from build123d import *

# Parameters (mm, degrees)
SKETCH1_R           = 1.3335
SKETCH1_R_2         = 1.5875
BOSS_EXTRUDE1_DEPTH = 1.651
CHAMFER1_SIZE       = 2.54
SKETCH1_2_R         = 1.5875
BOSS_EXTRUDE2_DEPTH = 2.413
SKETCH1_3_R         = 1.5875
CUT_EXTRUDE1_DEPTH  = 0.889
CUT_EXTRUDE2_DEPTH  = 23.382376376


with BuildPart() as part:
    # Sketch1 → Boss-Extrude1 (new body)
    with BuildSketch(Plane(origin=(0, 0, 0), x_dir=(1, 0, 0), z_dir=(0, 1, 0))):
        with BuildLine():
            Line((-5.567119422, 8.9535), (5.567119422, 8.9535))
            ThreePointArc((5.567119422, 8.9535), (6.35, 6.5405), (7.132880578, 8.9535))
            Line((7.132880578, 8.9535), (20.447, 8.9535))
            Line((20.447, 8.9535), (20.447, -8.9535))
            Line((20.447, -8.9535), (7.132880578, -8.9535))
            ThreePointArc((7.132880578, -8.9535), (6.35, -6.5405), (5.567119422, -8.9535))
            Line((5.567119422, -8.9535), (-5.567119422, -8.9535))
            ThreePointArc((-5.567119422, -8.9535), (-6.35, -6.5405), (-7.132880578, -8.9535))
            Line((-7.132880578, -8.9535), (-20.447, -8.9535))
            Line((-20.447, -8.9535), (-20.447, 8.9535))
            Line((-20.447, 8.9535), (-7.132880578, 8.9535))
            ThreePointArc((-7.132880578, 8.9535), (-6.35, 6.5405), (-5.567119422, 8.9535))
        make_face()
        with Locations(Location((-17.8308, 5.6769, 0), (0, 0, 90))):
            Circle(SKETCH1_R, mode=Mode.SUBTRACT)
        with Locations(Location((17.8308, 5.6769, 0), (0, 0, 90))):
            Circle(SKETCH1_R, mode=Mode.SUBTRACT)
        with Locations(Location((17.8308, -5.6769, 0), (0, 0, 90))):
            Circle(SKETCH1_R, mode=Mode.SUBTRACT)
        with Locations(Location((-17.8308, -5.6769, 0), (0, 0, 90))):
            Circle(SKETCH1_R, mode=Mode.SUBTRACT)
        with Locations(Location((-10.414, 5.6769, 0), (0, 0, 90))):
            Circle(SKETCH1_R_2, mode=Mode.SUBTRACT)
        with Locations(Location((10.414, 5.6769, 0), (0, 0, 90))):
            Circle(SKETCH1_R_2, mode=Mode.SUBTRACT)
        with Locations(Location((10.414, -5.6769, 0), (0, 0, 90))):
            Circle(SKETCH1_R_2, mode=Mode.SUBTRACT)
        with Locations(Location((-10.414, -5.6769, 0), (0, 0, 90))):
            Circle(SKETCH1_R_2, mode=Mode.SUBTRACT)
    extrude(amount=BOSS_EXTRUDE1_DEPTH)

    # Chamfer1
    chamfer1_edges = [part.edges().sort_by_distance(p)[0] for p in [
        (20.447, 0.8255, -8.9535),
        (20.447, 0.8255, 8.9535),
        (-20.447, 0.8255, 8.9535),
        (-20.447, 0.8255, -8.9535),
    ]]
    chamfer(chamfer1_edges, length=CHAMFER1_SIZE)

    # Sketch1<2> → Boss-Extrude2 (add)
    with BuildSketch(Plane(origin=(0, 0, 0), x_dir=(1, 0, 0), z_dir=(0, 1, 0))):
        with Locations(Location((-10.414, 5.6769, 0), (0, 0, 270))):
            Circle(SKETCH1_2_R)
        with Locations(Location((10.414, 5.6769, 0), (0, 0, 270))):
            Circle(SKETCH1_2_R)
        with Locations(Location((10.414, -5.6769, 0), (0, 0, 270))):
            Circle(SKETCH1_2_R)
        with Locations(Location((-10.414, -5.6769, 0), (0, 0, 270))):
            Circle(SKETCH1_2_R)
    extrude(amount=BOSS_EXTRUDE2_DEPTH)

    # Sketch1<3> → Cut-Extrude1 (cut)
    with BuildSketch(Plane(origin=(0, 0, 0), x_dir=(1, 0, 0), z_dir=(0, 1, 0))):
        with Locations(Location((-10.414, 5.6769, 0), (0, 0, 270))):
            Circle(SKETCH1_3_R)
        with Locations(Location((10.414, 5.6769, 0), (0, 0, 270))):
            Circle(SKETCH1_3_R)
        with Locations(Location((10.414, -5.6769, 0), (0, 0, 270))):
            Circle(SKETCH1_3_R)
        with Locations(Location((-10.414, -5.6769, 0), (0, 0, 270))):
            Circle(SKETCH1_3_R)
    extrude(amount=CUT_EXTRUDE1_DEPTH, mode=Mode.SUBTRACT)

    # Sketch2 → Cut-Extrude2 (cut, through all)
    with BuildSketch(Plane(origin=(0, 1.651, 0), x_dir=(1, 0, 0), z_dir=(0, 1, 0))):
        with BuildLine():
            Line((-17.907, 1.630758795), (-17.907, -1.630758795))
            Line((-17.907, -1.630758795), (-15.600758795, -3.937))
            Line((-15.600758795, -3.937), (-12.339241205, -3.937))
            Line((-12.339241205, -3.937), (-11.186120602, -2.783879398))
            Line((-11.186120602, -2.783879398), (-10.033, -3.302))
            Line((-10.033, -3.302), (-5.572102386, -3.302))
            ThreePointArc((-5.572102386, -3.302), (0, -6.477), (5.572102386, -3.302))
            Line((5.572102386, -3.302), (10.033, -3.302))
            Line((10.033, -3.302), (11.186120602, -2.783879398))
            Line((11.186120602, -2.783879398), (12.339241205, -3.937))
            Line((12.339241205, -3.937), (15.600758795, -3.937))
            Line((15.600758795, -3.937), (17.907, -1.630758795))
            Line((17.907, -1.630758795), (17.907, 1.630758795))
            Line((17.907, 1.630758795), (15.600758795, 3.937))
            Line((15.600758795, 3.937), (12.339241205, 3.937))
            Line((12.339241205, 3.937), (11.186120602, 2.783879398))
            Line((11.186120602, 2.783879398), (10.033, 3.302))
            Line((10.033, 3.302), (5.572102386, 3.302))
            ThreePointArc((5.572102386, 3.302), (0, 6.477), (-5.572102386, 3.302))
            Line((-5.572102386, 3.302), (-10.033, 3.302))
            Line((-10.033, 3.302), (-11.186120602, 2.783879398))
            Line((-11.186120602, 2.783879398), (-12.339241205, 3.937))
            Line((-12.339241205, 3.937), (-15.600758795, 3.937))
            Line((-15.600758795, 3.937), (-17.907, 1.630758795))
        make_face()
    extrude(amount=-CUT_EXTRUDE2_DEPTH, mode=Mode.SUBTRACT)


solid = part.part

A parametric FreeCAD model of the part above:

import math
import FreeCAD as App
import Part
import Sketcher
from FreeCAD import Vector
Q = App.Units.Quantity


def edges_at(feature, points):
    """Names of the edges that pass closest to the given points."""
    edges = feature.Shape.Edges
    near = lambda p: min(range(len(edges)), key=lambda i: edges[i].distToShape(Part.Vertex(*p))[0])
    return sorted({f"Edge{near(p) + 1}" for p in points})

doc = App.newDocument("Part")
body = doc.addObject("PartDesign::Body", "Body")

# Sketch on XZ plane
sketch1 = doc.addObject("Sketcher::SketchObject", "Sketch")
body.addObject(sketch1)
sketch1.AttachmentSupport = (doc.XZ_Plane, [""])
sketch1.MapMode = "FlatFace"
sketch1.addGeometry(Part.LineSegment(Vector(5.6, -9, 0), Vector(-5.6, -9, 0)), False)
sketch1.addGeometry(Part.ArcOfCircle(Part.Circle(Vector(-6.3, -7.9, 0), Vector(0, 0, 1), 1.3), math.radians(-54), math.radians(234)), False)
sketch1.addGeometry(Part.LineSegment(Vector(-7.1, -9, 0), Vector(-20.4, -9, 0)), False)
sketch1.addGeometry(Part.LineSegment(Vector(-20.4, -9, 0), Vector(-20.4, 9, 0)), False)
sketch1.addGeometry(Part.LineSegment(Vector(-20.4, 9, 0), Vector(-7.1, 9, 0)), False)
sketch1.addGeometry(Part.ArcOfCircle(Part.Circle(Vector(-6.3, 7.9, 0), Vector(0, 0, 1), 1.3), math.radians(126), math.radians(414)), False)
sketch1.addGeometry(Part.LineSegment(Vector(-5.6, 9, 0), Vector(5.6, 9, 0)), False)
sketch1.addGeometry(Part.ArcOfCircle(Part.Circle(Vector(6.3, 7.9, 0), Vector(0, 0, 1), 1.3), math.radians(126), math.radians(414)), False)
sketch1.addGeometry(Part.LineSegment(Vector(7.1, 9, 0), Vector(20.4, 9, 0)), False)
sketch1.addGeometry(Part.LineSegment(Vector(20.4, 9, 0), Vector(20.4, -9, 0)), False)
sketch1.addGeometry(Part.LineSegment(Vector(20.4, -9, 0), Vector(7.1, -9, 0)), False)
sketch1.addGeometry(Part.ArcOfCircle(Part.Circle(Vector(6.3, -7.9, 0), Vector(0, 0, 1), 1.3), math.radians(-54), math.radians(234)), False)
sketch1.addGeometry(Part.Circle(Vector(17.8, 5.7, 0), Vector(0, 0, 1), 1.3), False)
sketch1.addGeometry(Part.Circle(Vector(10.4, 5.7, 0), Vector(0, 0, 1), 1.6), False)
sketch1.addGeometry(Part.Circle(Vector(-10.4, 5.7, 0), Vector(0, 0, 1), 1.6), False)
sketch1.addGeometry(Part.Circle(Vector(-17.8, 5.7, 0), Vector(0, 0, 1), 1.3), False)
sketch1.addGeometry(Part.Circle(Vector(17.8, -5.7, 0), Vector(0, 0, 1), 1.3), False)
sketch1.addGeometry(Part.Circle(Vector(10.4, -5.7, 0), Vector(0, 0, 1), 1.6), False)
sketch1.addGeometry(Part.Circle(Vector(-10.4, -5.7, 0), Vector(0, 0, 1), 1.6), False)
sketch1.addGeometry(Part.Circle(Vector(-17.8, -5.7, 0), Vector(0, 0, 1), 1.3), False)
sketch1.addConstraint(Sketcher.Constraint("Coincident", 0, 2, 1, 1))
sketch1.addConstraint(Sketcher.Constraint("Coincident", 1, 2, 2, 1))
sketch1.addConstraint(Sketcher.Constraint("Coincident", 2, 2, 3, 1))
sketch1.addConstraint(Sketcher.Constraint("Coincident", 3, 2, 4, 1))
sketch1.addConstraint(Sketcher.Constraint("Coincident", 4, 2, 5, 1))
sketch1.addConstraint(Sketcher.Constraint("Coincident", 5, 2, 6, 1))
sketch1.addConstraint(Sketcher.Constraint("Coincident", 6, 2, 7, 1))
sketch1.addConstraint(Sketcher.Constraint("Coincident", 7, 2, 8, 1))
sketch1.addConstraint(Sketcher.Constraint("Coincident", 8, 2, 9, 1))
sketch1.addConstraint(Sketcher.Constraint("Coincident", 9, 2, 10, 1))
sketch1.addConstraint(Sketcher.Constraint("Coincident", 10, 2, 11, 1))
sketch1.addConstraint(Sketcher.Constraint("Coincident", 11, 2, 0, 1))
sketch1.addConstraint(Sketcher.Constraint("Horizontal", 0))
sketch1.addConstraint(Sketcher.Constraint("Horizontal", 2))
sketch1.addConstraint(Sketcher.Constraint("Vertical", 3))
sketch1.addConstraint(Sketcher.Constraint("Horizontal", 4))
sketch1.addConstraint(Sketcher.Constraint("Horizontal", 6))
sketch1.addConstraint(Sketcher.Constraint("Horizontal", 8))
sketch1.addConstraint(Sketcher.Constraint("Vertical", 9))
sketch1.addConstraint(Sketcher.Constraint("Horizontal", 10))
sketch1.addConstraint(Sketcher.Constraint("Equal", 1, 5))
sketch1.addConstraint(Sketcher.Constraint("Equal", 5, 7))
sketch1.addConstraint(Sketcher.Constraint("Equal", 7, 11))
sketch1.addConstraint(Sketcher.Constraint("Equal", 11, 12))
sketch1.addConstraint(Sketcher.Constraint("Equal", 13, 14))
sketch1.addConstraint(Sketcher.Constraint("Equal", 12, 15))
sketch1.addConstraint(Sketcher.Constraint("Equal", 15, 16))
sketch1.addConstraint(Sketcher.Constraint("Equal", 14, 17))
sketch1.addConstraint(Sketcher.Constraint("Equal", 17, 18))
sketch1.addConstraint(Sketcher.Constraint("Equal", 16, 19))
sketch1.addConstraint(Sketcher.Constraint("Symmetric", 1, 3, 7, 3, -1, 1))
sketch1.addConstraint(Sketcher.Constraint("Symmetric", 5, 3, 11, 3, -1, 1))
sketch1.addConstraint(Sketcher.Constraint("Symmetric", 15, 3, 16, 3, -1, 1))
sketch1.addConstraint(Sketcher.Constraint("Symmetric", 14, 3, 17, 3, -1, 1))
sketch1.addConstraint(Sketcher.Constraint("Symmetric", 13, 3, 18, 3, -1, 1))
sketch1.addConstraint(Sketcher.Constraint("Symmetric", 12, 3, 19, 3, -1, 1))
sketch1.addConstraint(Sketcher.Constraint("Symmetric", 2, 2, 8, 2, -1, 1))
sketch1.addConstraint(Sketcher.Constraint("Symmetric", 5, 3, 7, 3, -2))
sketch1.addConstraint(Sketcher.Constraint("Symmetric", 13, 3, 14, 3, -2))
sketch1.addConstraint(Sketcher.Constraint("Symmetric", 12, 3, 15, 3, -2))
sketch1.addConstraint(Sketcher.Constraint("Horizontal", 12, 3, 13, 3))
sketch1.addConstraint(Sketcher.Constraint("Horizontal", 0, 2, 1, 2))
sketch1.addConstraint(Sketcher.Constraint("Horizontal", 4, 2, 5, 2))
sketch1.addConstraint(Sketcher.Constraint("Horizontal", 6, 2, 7, 2))
sketch1.addConstraint(Sketcher.Constraint("Horizontal", 2, 2, 9, 2))
sketch1.addConstraint(Sketcher.Constraint("Diameter", 12, Q("0.105 in")))
sketch1.addConstraint(Sketcher.Constraint("Diameter", 13, Q("0.125 in")))
sketch1.addConstraint(Sketcher.Constraint("DistanceX", 5, 3, 7, 3, Q("0.5 in")))
sketch1.addConstraint(Sketcher.Constraint("DistanceY", 3, 1, 3, 2, Q("0.705 in")))
sketch1.addConstraint(Sketcher.Constraint("DistanceY", 1, 3, -1, 1, Q("0.31 in")))
sketch1.addConstraint(Sketcher.Constraint("DistanceX", -1, 1, 13, 3, Q("0.41 in")))
sketch1.addConstraint(Sketcher.Constraint("DistanceX", -1, 1, 12, 3, Q("0.702 in")))
sketch1.addConstraint(Sketcher.Constraint("DistanceX", 2, 2, -1, 1, Q("0.805 in")))
sketch1.addConstraint(Sketcher.Constraint("DistanceY", 16, 3, 12, 3, Q("0.447 in")))
pad1 = doc.addObject("PartDesign::Pad", "Pad")
body.addObject(pad1)
pad1.Profile = sketch1
pad1.Length = Q("0.065 in")
pad1.Reversed = True
doc.recompute()

chamfer = doc.addObject("PartDesign::Chamfer", "Chamfer")
body.addObject(chamfer)
chamfer.Base = (pad1, edges_at(pad1, [
    (20.447, 0.826, -8.954),
    (20.447, 0.826, 8.954),
    (-20.447, 0.826, 8.954),
    (-20.447, 0.826, -8.954),
]))
chamfer.Size = Q("0.1 in")

# Sketch on XZ plane
sketch2 = doc.addObject("Sketcher::SketchObject", "Sketch001")
body.addObject(sketch2)
sketch2.AttachmentSupport = (doc.XZ_Plane, [""])
sketch2.MapMode = "FlatFace"
sketch2.addGeometry(Part.Circle(Vector(-10.4, -5.7, 0), Vector(0, 0, 1), 1.6), False)
sketch2.addGeometry(Part.Circle(Vector(10.4, -5.7, 0), Vector(0, 0, 1), 1.6), False)
sketch2.addGeometry(Part.Circle(Vector(10.4, 5.7, 0), Vector(0, 0, 1), 1.6), False)
sketch2.addGeometry(Part.Circle(Vector(-10.4, 5.7, 0), Vector(0, 0, 1), 1.6), False)
sketch2.addConstraint(Sketcher.Constraint("Equal", 0, 1))
sketch2.addConstraint(Sketcher.Constraint("Equal", 1, 2))
sketch2.addConstraint(Sketcher.Constraint("Equal", 2, 3))
sketch2.addConstraint(Sketcher.Constraint("Symmetric", 0, 3, 2, 3, -1, 1))
sketch2.addConstraint(Sketcher.Constraint("Symmetric", 1, 3, 3, 3, -1, 1))
sketch2.addConstraint(Sketcher.Constraint("Symmetric", 0, 3, 1, 3, -2))
sketch2.addConstraint(Sketcher.Constraint("Diameter", 0, Q("0.125 in")))
sketch2.addConstraint(Sketcher.Constraint("DistanceX", 0, 3, -1, 1, Q("0.41 in")))
sketch2.addConstraint(Sketcher.Constraint("DistanceY", 1, 3, 2, 3, Q("0.447 in")))
pad2 = doc.addObject("PartDesign::Pad", "Pad001")
body.addObject(pad2)
pad2.Profile = sketch2
pad2.Length = Q("0.095 in")
pad2.Reversed = True

# Sketch on XZ plane
sketch3 = doc.addObject("Sketcher::SketchObject", "Sketch002")
body.addObject(sketch3)
sketch3.AttachmentSupport = (doc.XZ_Plane, [""])
sketch3.MapMode = "FlatFace"
sketch3.addGeometry(Part.Circle(Vector(-10.4, -5.7, 0), Vector(0, 0, 1), 1.6), False)
sketch3.addGeometry(Part.Circle(Vector(10.4, -5.7, 0), Vector(0, 0, 1), 1.6), False)
sketch3.addGeometry(Part.Circle(Vector(10.4, 5.7, 0), Vector(0, 0, 1), 1.6), False)
sketch3.addGeometry(Part.Circle(Vector(-10.4, 5.7, 0), Vector(0, 0, 1), 1.6), False)
sketch3.addConstraint(Sketcher.Constraint("Equal", 0, 1))
sketch3.addConstraint(Sketcher.Constraint("Equal", 1, 2))
sketch3.addConstraint(Sketcher.Constraint("Equal", 2, 3))
sketch3.addConstraint(Sketcher.Constraint("Symmetric", 0, 3, 2, 3, -1, 1))
sketch3.addConstraint(Sketcher.Constraint("Symmetric", 1, 3, 3, 3, -1, 1))
sketch3.addConstraint(Sketcher.Constraint("Symmetric", 0, 3, 1, 3, -2))
sketch3.addConstraint(Sketcher.Constraint("Diameter", 0, Q("0.125 in")))
sketch3.addConstraint(Sketcher.Constraint("DistanceX", 0, 3, -1, 1, Q("0.41 in")))
sketch3.addConstraint(Sketcher.Constraint("DistanceY", 1, 3, 2, 3, Q("0.447 in")))
pocket1 = doc.addObject("PartDesign::Pocket", "Pocket")
body.addObject(pocket1)
pocket1.Profile = sketch3
pocket1.Length = Q("0.035 in")

# Sketch on XZ plane
sketch4 = doc.addObject("Sketcher::SketchObject", "Sketch003")
body.addObject(sketch4)
sketch4.AttachmentSupport = (doc.XZ_Plane, [""])
sketch4.MapMode = "FlatFace"
sketch4.AttachmentOffset = App.Placement(Vector(0, 0, -0.065 * 25.4), App.Rotation())
sketch4.addGeometry(Part.LineSegment(Vector(-17.9, -1.6, 0), Vector(-17.9, 1.6, 0)), False)
sketch4.addGeometry(Part.LineSegment(Vector(-17.9, 1.6, 0), Vector(-15.6, 3.9, 0)), False)
sketch4.addGeometry(Part.LineSegment(Vector(-15.6, 3.9, 0), Vector(-12.3, 3.9, 0)), False)
sketch4.addGeometry(Part.LineSegment(Vector(-12.3, 3.9, 0), Vector(-11.2, 2.8, 0)), False)
sketch4.addGeometry(Part.LineSegment(Vector(-11.2, 2.8, 0), Vector(-10, 3.3, 0)), False)
sketch4.addGeometry(Part.LineSegment(Vector(-10, 3.3, 0), Vector(-5.6, 3.3, 0)), False)
sketch4.addGeometry(Part.ArcOfCircle(Part.Circle(Vector(0, 0, 0), Vector(0, 0, 1), 6.5), math.radians(31), math.radians(149)), False)
sketch4.addGeometry(Part.LineSegment(Vector(5.6, 3.3, 0), Vector(10, 3.3, 0)), False)
sketch4.addGeometry(Part.LineSegment(Vector(10, 3.3, 0), Vector(11.2, 2.8, 0)), False)
sketch4.addGeometry(Part.LineSegment(Vector(11.2, 2.8, 0), Vector(12.3, 3.9, 0)), False)
sketch4.addGeometry(Part.LineSegment(Vector(12.3, 3.9, 0), Vector(15.6, 3.9, 0)), False)
sketch4.addGeometry(Part.LineSegment(Vector(15.6, 3.9, 0), Vector(17.9, 1.6, 0)), False)
sketch4.addGeometry(Part.LineSegment(Vector(17.9, 1.6, 0), Vector(17.9, -1.6, 0)), False)
sketch4.addGeometry(Part.LineSegment(Vector(17.9, -1.6, 0), Vector(15.6, -3.9, 0)), False)
sketch4.addGeometry(Part.LineSegment(Vector(15.6, -3.9, 0), Vector(12.3, -3.9, 0)), False)
sketch4.addGeometry(Part.LineSegment(Vector(12.3, -3.9, 0), Vector(11.2, -2.8, 0)), False)
sketch4.addGeometry(Part.LineSegment(Vector(11.2, -2.8, 0), Vector(10, -3.3, 0)), False)
sketch4.addGeometry(Part.LineSegment(Vector(10, -3.3, 0), Vector(5.6, -3.3, 0)), False)
sketch4.addGeometry(Part.ArcOfCircle(Part.Circle(Vector(0, 0, 0), Vector(0, 0, 1), 6.5), math.radians(-149), math.radians(-31)), False)
sketch4.addGeometry(Part.LineSegment(Vector(-5.6, -3.3, 0), Vector(-10, -3.3, 0)), False)
sketch4.addGeometry(Part.LineSegment(Vector(-10, -3.3, 0), Vector(-11.2, -2.8, 0)), False)
sketch4.addGeometry(Part.LineSegment(Vector(-11.2, -2.8, 0), Vector(-12.3, -3.9, 0)), False)
sketch4.addGeometry(Part.LineSegment(Vector(-12.3, -3.9, 0), Vector(-15.6, -3.9, 0)), False)
sketch4.addGeometry(Part.LineSegment(Vector(-15.6, -3.9, 0), Vector(-17.9, -1.6, 0)), False)
sketch4.addConstraint(Sketcher.Constraint("Coincident", 0, 2, 1, 1))
sketch4.addConstraint(Sketcher.Constraint("Coincident", 1, 2, 2, 1))
sketch4.addConstraint(Sketcher.Constraint("Coincident", 2, 2, 3, 1))
sketch4.addConstraint(Sketcher.Constraint("Coincident", 3, 2, 4, 1))
sketch4.addConstraint(Sketcher.Constraint("Coincident", 4, 2, 5, 1))
sketch4.addConstraint(Sketcher.Constraint("Coincident", 5, 2, 6, 2))
sketch4.addConstraint(Sketcher.Constraint("Coincident", 6, 1, 7, 1))
sketch4.addConstraint(Sketcher.Constraint("Coincident", 7, 2, 8, 1))
sketch4.addConstraint(Sketcher.Constraint("Coincident", 8, 2, 9, 1))
sketch4.addConstraint(Sketcher.Constraint("Coincident", 9, 2, 10, 1))
sketch4.addConstraint(Sketcher.Constraint("Coincident", 10, 2, 11, 1))
sketch4.addConstraint(Sketcher.Constraint("Coincident", 11, 2, 12, 1))
sketch4.addConstraint(Sketcher.Constraint("Coincident", 12, 2, 13, 1))
sketch4.addConstraint(Sketcher.Constraint("Coincident", 13, 2, 14, 1))
sketch4.addConstraint(Sketcher.Constraint("Coincident", 14, 2, 15, 1))
sketch4.addConstraint(Sketcher.Constraint("Coincident", 15, 2, 16, 1))
sketch4.addConstraint(Sketcher.Constraint("Coincident", 16, 2, 17, 1))
sketch4.addConstraint(Sketcher.Constraint("Coincident", 17, 2, 18, 2))
sketch4.addConstraint(Sketcher.Constraint("Coincident", 18, 1, 19, 1))
sketch4.addConstraint(Sketcher.Constraint("Coincident", 19, 2, 20, 1))
sketch4.addConstraint(Sketcher.Constraint("Coincident", 20, 2, 21, 1))
sketch4.addConstraint(Sketcher.Constraint("Coincident", 21, 2, 22, 1))
sketch4.addConstraint(Sketcher.Constraint("Coincident", 22, 2, 23, 1))
sketch4.addConstraint(Sketcher.Constraint("Coincident", 23, 2, 0, 1))
sketch4.addConstraint(Sketcher.Constraint("Vertical", 0))
sketch4.addConstraint(Sketcher.Constraint("Horizontal", 2))
sketch4.addConstraint(Sketcher.Constraint("Horizontal", 5))
sketch4.addConstraint(Sketcher.Constraint("Horizontal", 7))
sketch4.addConstraint(Sketcher.Constraint("Horizontal", 10))
sketch4.addConstraint(Sketcher.Constraint("Vertical", 12))
sketch4.addConstraint(Sketcher.Constraint("Horizontal", 14))
sketch4.addConstraint(Sketcher.Constraint("Horizontal", 17))
sketch4.addConstraint(Sketcher.Constraint("Horizontal", 19))
sketch4.addConstraint(Sketcher.Constraint("Horizontal", 22))
sketch4.addConstraint(Sketcher.Constraint("Coincident", 6, 3, -1, 1))
sketch4.addConstraint(Sketcher.Constraint("Coincident", 18, 3, -1, 1))
sketch4.addConstraint(Sketcher.Constraint("Equal", 6, 18))
sketch4.addConstraint(Sketcher.Constraint("Symmetric", 0, 2, 12, 2, -1, 1))
sketch4.addConstraint(Sketcher.Constraint("Symmetric", 1, 2, 13, 2, -1, 1))
sketch4.addConstraint(Sketcher.Constraint("Symmetric", 3, 2, 15, 2, -1, 1))
sketch4.addConstraint(Sketcher.Constraint("Symmetric", 4, 2, 16, 2, -1, 1))
sketch4.addConstraint(Sketcher.Constraint("Symmetric", 7, 2, 19, 2, -1, 1))
sketch4.addConstraint(Sketcher.Constraint("Symmetric", 8, 2, 20, 2, -1, 1))
sketch4.addConstraint(Sketcher.Constraint("Symmetric", 9, 2, 21, 2, -1, 1))
sketch4.addConstraint(Sketcher.Constraint("Symmetric", 4, 2, 7, 2, -2))
sketch4.addConstraint(Sketcher.Constraint("Symmetric", 3, 2, 8, 2, -2))
sketch4.addConstraint(Sketcher.Constraint("Symmetric", 2, 2, 9, 2, -2))
sketch4.addConstraint(Sketcher.Constraint("Perpendicular", 1, 3))
sketch4.addConstraint(Sketcher.Constraint("Perpendicular", 3, 9))
sketch4.addConstraint(Sketcher.Constraint("Perpendicular", 9, 11))
sketch4.addConstraint(Sketcher.Constraint("Perpendicular", 13, 15))
sketch4.addConstraint(Sketcher.Constraint("Perpendicular", 21, 23))
sketch4.addConstraint(Sketcher.Constraint("Horizontal", 0, 2, 11, 2))
sketch4.addConstraint(Sketcher.Constraint("Horizontal", 12, 2, 23, 2))
sketch4.addConstraint(Sketcher.Constraint("Equal", 22, 0))
sketch4.addConstraint(Sketcher.Constraint("Radius", 6, Q("0.255 in")))
sketch4.addConstraint(Sketcher.Constraint("DistanceY", -1, 1, 4, 2, Q("0.13 in")))
sketch4.addConstraint(Sketcher.Constraint("DistanceX", 0, 2, 4, 2, Q("0.31 in")))
sketch4.addConstraint(Sketcher.Constraint("DistanceX", 4, 2, 7, 2, Q("0.79 in")))
sketch4.addConstraint(Sketcher.Constraint("DistanceY", 13, 2, 10, 2, Q("0.31 in")))
sketch4.addConstraint(Sketcher.Constraint("Distance", 3, 1.630759))
sketch4.addConstraint(Sketcher.Constraint("DistanceX", 2, 1, 2, 2, 3.261518))
pocket2 = doc.addObject("PartDesign::Pocket", "Pocket001")
body.addObject(pocket2)
pocket2.Profile = sketch4
pocket2.Type = "ThroughAll"
pocket2.Reversed = True

doc.recompute()
